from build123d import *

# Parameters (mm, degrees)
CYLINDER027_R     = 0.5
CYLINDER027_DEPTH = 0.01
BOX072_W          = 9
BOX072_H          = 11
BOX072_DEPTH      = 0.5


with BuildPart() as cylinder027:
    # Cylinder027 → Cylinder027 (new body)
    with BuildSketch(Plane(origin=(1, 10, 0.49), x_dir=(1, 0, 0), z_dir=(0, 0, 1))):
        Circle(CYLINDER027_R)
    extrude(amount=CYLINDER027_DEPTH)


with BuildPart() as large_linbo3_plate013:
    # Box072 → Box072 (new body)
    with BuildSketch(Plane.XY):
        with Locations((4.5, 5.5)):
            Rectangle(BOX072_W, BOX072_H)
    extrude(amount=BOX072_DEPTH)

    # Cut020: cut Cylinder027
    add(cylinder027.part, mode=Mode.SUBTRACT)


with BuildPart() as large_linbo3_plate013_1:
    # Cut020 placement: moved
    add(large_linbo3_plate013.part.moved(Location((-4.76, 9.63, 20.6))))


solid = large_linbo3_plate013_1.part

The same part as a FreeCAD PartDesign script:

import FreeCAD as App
import Part
import Sketcher

V = App.Vector
Q = App.Units.Quantity


def add_polygon(sketch, points):
    """Adds a closed chain of lines whose ends are joined by coincident constraints."""
    first, n = sketch.GeometryCount, len(points)
    for a, b in zip(points, points[1:] + points[:1]):
        sketch.addGeometry(Part.LineSegment(App.Vector(*a, 0), App.Vector(*b, 0)), False)
    for i in range(n):
        sketch.addConstraint(Sketcher.Constraint("Coincident", first + i, 2, first + (i + 1) % n, 1))

doc = App.newDocument("Part")
body = doc.addObject("PartDesign::Body", "Body")

sketch1 = doc.addObject("Sketcher::SketchObject", "Sketch")
body.addObject(sketch1)
sketch1.AttachmentSupport = (doc.XY_Plane, [""])
sketch1.MapMode = "FlatFace"
sketch1.AttachmentOffset = App.Placement(V(0, 0, 0.49), App.Rotation())
sketch1.addGeometry(Part.Circle(V(1, 10, 0), V(0, 0, 1), 0.5), False)
sketch1.addConstraint([
    Sketcher.Constraint("Diameter", 0, Q("1 mm")),
    Sketcher.Constraint("DistanceX", -1, 1, 0, 3, Q("1 mm")),
    Sketcher.Constraint("DistanceY", -1, 1, 0, 3, Q("10 mm")),
])
pad1 = doc.addObject("PartDesign::Pad", "Pad")
body.addObject(pad1)
pad1.Profile = sketch1
pad1.Length = 0.01
body2 = doc.addObject("PartDesign::Body", "Body001")

sketch2 = doc.addObject("Sketcher::SketchObject", "Sketch001")
body2.addObject(sketch2)
sketch2.AttachmentSupport = (doc.getObject("XY_Plane001"), [""])
sketch2.MapMode = "FlatFace"
add_polygon(sketch2, [(0, 11), (0, 0), (9, 0), (9, 11)])
sketch2.addConstraint([
    Sketcher.Constraint("Vertical", 0),
    Sketcher.Constraint("Horizontal", 1),
    Sketcher.Constraint("Vertical", 2),
    Sketcher.Constraint("Horizontal", 3),
    Sketcher.Constraint("Coincident", 0, 2, -1, 1),
    Sketcher.Constraint("DistanceX", 1, 1, 1, 2, Q("9 mm")),
    Sketcher.Constraint("DistanceY", 0, 2, 0, 1, Q("11 mm")),
])
pad2 = doc.addObject("PartDesign::Pad", "Pad001")
body2.addObject(pad2)
pad2.Profile = sketch2
pad2.Length = 0.5
doc.recompute()

boolean = doc.addObject("PartDesign::Boolean", "Boolean")
body2.addObject(boolean)
boolean.Type = "Cut"
boolean.addObjects([body])
body3 = doc.addObject("PartDesign::Body", "Body002")
doc.recompute()

body2.Placement = App.Placement(V(-4.76, 9.63, 20.6), App.Rotation(V(0, 0, 1), 0))
boolean2 = doc.addObject("PartDesign::Boolean", "Boolean001")
body3.addObject(boolean2)
boolean2.Type = "Fuse"
boolean2.addObjects([body2])

doc.recompute()
